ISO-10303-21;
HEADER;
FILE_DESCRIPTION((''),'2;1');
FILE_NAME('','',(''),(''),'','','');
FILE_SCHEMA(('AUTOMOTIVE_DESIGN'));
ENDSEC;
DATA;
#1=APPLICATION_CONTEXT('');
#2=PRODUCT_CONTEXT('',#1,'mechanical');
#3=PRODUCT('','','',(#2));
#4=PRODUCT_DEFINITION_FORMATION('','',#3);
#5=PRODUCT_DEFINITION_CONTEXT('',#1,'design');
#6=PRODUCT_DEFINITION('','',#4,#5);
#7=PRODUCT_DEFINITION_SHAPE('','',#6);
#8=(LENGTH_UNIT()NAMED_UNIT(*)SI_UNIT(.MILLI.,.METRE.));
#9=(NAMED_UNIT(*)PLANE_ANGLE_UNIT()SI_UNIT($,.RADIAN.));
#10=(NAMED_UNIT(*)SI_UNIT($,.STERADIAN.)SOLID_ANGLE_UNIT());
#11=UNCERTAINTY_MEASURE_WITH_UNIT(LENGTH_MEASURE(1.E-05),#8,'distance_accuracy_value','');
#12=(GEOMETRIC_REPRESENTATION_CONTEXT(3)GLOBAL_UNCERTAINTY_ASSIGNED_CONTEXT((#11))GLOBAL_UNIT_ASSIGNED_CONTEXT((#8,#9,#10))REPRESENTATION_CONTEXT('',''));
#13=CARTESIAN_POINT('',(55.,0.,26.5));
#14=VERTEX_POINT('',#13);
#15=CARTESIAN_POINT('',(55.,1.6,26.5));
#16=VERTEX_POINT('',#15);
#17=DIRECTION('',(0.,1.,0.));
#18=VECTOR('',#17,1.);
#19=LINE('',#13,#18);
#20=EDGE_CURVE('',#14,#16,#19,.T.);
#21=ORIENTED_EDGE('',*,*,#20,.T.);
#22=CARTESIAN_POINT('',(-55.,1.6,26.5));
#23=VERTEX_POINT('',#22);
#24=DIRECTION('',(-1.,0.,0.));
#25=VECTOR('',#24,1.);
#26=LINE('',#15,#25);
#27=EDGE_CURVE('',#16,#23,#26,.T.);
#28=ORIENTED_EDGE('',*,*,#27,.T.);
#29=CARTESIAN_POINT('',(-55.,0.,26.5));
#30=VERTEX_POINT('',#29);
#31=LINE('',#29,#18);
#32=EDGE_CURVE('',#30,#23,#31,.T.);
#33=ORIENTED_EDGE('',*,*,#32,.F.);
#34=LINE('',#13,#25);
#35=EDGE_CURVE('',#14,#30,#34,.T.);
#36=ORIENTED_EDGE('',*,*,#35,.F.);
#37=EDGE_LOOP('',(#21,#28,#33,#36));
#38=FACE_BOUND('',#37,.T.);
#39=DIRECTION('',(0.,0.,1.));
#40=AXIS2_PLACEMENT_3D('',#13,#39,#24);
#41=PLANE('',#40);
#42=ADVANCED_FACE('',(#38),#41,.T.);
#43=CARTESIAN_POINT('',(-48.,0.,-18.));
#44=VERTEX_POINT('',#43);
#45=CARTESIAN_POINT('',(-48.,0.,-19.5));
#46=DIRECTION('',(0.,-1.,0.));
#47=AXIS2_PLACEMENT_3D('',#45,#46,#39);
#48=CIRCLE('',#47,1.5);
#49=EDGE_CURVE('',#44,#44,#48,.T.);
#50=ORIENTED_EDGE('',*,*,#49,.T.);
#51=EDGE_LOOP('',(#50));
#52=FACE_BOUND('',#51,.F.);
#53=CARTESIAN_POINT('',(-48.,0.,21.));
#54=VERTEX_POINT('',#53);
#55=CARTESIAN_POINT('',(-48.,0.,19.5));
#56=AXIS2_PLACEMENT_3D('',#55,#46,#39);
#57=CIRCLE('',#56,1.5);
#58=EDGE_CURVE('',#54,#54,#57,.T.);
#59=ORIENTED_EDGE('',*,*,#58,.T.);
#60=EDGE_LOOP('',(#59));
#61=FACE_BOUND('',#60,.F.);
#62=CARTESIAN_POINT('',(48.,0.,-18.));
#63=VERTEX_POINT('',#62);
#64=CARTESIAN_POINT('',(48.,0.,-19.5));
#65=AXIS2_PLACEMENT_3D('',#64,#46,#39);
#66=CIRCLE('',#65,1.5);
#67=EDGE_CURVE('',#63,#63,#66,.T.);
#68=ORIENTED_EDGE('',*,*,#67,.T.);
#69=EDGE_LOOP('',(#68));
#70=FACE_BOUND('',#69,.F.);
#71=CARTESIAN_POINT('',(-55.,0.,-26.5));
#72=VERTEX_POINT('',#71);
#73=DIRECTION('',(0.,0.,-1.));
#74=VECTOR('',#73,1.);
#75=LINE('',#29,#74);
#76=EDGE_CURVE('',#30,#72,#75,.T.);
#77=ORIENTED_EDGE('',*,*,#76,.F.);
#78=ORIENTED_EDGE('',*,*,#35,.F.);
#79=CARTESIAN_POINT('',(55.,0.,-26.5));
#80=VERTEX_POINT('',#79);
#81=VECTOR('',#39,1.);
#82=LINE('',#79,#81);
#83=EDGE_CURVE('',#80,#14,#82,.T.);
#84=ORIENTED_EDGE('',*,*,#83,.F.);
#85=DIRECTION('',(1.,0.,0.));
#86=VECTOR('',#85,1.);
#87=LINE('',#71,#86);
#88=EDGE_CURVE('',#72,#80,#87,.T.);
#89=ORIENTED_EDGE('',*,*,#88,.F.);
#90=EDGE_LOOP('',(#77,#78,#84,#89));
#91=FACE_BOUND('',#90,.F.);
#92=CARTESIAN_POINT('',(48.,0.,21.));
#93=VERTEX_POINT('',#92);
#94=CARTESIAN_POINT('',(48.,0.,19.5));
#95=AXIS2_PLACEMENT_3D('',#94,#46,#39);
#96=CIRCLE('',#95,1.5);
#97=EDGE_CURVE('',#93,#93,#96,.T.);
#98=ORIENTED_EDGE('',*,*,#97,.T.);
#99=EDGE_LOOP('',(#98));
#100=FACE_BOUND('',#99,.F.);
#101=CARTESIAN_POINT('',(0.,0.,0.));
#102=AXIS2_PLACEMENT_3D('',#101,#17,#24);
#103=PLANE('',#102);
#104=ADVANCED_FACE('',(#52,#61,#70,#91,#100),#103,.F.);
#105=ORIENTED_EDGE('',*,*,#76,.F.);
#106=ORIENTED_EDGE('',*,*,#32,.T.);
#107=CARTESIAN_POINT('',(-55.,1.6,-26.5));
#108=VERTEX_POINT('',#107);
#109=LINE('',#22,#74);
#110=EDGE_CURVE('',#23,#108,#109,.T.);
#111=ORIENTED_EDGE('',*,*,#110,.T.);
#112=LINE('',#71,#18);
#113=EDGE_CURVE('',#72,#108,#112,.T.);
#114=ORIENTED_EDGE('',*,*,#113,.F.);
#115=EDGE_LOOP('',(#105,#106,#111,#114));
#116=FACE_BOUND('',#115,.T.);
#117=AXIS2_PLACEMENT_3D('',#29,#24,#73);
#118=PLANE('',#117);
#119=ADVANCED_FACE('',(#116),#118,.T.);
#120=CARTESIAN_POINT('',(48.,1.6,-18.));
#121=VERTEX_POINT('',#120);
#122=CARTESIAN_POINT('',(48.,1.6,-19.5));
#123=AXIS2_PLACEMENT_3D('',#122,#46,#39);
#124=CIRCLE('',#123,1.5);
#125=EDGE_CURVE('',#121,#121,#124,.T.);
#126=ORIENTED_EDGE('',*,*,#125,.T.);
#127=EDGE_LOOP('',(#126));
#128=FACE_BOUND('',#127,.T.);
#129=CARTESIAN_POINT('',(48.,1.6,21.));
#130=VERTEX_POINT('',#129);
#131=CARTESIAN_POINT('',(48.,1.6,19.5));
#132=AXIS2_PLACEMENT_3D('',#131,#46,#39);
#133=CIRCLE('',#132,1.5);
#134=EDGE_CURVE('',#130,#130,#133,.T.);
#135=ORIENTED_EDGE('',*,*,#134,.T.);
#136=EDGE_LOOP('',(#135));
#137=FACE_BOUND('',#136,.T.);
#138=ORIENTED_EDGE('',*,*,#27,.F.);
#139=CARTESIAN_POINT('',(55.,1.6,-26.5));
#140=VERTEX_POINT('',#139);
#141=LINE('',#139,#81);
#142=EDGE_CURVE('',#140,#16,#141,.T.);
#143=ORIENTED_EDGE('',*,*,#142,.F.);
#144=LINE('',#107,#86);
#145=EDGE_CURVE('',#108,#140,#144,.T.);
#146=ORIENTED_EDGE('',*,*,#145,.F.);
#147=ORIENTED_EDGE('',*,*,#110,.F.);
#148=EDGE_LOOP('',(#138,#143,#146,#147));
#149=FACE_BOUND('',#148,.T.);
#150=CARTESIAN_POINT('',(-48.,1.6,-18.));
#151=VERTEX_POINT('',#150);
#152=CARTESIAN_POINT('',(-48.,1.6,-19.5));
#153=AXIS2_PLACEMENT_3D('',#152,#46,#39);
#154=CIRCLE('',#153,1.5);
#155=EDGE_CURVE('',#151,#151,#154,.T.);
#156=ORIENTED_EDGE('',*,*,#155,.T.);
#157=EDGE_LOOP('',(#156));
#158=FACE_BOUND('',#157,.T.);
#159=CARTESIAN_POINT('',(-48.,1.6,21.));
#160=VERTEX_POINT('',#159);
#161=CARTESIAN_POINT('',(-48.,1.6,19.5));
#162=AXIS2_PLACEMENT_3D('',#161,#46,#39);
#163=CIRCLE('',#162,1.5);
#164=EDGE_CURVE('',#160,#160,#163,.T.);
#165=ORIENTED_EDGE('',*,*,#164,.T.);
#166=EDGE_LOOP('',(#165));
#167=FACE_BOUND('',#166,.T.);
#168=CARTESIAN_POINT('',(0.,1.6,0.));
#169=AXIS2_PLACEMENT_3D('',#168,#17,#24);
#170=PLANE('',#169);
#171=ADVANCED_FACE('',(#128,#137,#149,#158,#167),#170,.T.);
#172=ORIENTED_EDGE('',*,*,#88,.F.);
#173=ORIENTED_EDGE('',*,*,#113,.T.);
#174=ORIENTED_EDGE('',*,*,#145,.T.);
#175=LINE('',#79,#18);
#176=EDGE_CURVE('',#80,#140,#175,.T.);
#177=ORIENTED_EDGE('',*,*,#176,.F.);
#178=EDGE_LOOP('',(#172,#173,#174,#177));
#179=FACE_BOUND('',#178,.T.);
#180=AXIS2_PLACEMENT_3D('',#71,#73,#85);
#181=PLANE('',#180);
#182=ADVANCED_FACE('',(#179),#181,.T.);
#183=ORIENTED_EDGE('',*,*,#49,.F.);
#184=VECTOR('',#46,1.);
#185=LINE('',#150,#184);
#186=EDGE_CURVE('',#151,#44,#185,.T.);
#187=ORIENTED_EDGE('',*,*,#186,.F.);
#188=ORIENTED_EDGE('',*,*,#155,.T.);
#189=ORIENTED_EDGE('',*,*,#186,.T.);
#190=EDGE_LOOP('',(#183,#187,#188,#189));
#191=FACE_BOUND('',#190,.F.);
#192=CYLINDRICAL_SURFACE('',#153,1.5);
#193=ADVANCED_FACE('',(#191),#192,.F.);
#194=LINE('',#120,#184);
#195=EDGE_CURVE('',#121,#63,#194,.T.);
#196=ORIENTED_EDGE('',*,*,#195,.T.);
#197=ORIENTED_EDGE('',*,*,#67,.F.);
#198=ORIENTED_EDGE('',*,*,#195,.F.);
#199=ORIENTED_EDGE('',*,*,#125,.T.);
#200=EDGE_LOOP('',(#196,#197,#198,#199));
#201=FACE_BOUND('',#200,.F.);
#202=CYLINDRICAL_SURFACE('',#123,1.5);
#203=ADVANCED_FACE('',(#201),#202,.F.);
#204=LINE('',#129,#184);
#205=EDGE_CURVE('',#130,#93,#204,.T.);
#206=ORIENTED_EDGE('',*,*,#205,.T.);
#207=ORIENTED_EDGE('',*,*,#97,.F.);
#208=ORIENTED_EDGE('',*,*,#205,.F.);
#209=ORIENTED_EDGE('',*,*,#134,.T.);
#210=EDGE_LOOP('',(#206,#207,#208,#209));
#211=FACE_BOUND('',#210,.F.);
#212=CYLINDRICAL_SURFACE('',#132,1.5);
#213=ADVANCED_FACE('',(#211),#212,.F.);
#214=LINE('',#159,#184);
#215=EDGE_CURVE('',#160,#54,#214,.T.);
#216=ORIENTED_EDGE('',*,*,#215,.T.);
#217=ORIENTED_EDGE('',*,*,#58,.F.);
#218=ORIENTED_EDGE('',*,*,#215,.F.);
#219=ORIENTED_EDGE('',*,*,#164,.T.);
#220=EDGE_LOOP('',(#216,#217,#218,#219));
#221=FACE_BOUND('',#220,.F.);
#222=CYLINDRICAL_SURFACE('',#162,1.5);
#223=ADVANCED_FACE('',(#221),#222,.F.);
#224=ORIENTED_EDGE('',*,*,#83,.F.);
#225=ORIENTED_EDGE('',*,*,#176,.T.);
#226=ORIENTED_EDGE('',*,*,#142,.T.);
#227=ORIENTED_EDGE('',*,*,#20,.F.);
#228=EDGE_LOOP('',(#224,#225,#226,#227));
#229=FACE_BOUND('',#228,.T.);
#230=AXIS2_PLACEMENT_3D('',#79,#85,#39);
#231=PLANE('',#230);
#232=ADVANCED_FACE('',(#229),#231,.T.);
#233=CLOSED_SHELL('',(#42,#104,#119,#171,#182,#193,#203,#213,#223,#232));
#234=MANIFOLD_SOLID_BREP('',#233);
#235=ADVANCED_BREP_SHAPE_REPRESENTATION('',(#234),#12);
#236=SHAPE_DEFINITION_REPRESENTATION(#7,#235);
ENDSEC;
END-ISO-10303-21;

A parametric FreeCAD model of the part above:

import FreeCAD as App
import Part
import Sketcher
Q = App.Units.Quantity

doc = App.newDocument("Part")
params = doc.addObject("Spreadsheet::Sheet", "Params")
for row, (alias, value) in enumerate([
    ("sketch1_width", "110 mm"),
    ("sketch1_height", "53 mm"),
    ("pad1_length", "1.6 mm"),
    ("sketch2_diameter", "3 mm"),
    ("hole_diameter", "3 mm"),
], start=1):
    params.set(f"A{row}", alias)
    params.set(f"B{row}", "=" + value)
    params.setAlias(f"B{row}", alias)

body = doc.addObject("PartDesign::Body", "Body")

# Sketch on XZ plane
sketch1 = body.newObject("Sketcher::SketchObject", "Sketch")
sketch1.AttachmentSupport = (doc.getObject("XZ_Plane"), [""])
sketch1.MapMode = "FlatFace"
sketch1.addGeometry([
    Part.LineSegment(App.Vector(55, -26, 0), App.Vector(-55, -26, 0)),
    Part.LineSegment(App.Vector(-55, -26, 0), App.Vector(-55, 26, 0)),
    Part.LineSegment(App.Vector(-55, 26, 0), App.Vector(55, 26, 0)),
    Part.LineSegment(App.Vector(55, 26, 0), App.Vector(55, -26, 0)),
], False)
sketch1.addConstraint([
    Sketcher.Constraint("Coincident", 0, 2, 1, 1),
    Sketcher.Constraint("Coincident", 1, 2, 2, 1),
    Sketcher.Constraint("Coincident", 2, 2, 3, 1),
    Sketcher.Constraint("Coincident", 3, 2, 0, 1),
    Sketcher.Constraint("Horizontal", 0),
    Sketcher.Constraint("Vertical", 1),
    Sketcher.Constraint("Horizontal", 2),
    Sketcher.Constraint("Vertical", 3),
    Sketcher.Constraint("Symmetric", 0, 2, 2, 2, -1, 1),
    Sketcher.Constraint("DistanceX", 0, 2, 0, 1, Q("110 mm")),
    Sketcher.Constraint("DistanceY", 1, 1, 1, 2, Q("53 mm")),
])
sketch1.setExpression("Constraints[9]", "Params.sketch1_width")
sketch1.setExpression("Constraints[10]", "Params.sketch1_height")
pad1 = body.newObject("PartDesign::Pad", "Pad")
pad1.Profile = sketch1
pad1.setExpression("Length", "Params.pad1_length")
pad1.Reversed = True

# Sketch on XZ plane
sketch2 = body.newObject("Sketcher::SketchObject", "Sketch001")
sketch2.AttachmentSupport = (doc.getObject("XZ_Plane"), [""])
sketch2.MapMode = "FlatFace"
sketch2.AttachmentOffset = App.Placement(App.Vector(0, 0, -1.6), App.Rotation())
sketch2.addGeometry([
    Part.Circle(App.Vector(-48, 19.5, 0), App.Vector(0, 0, 1), 1.5),
    Part.Circle(App.Vector(-48, -19.5, 0), App.Vector(0, 0, 1), 1.5),
    Part.Circle(App.Vector(48, 19.5, 0), App.Vector(0, 0, 1), 1.5),
    Part.Circle(App.Vector(48, -19.5, 0), App.Vector(0, 0, 1), 1.5),
], False)
sketch2.addConstraint([
    Sketcher.Constraint("Equal", 0, 1),
    Sketcher.Constraint("Equal", 1, 2),
    Sketcher.Constraint("Equal", 2, 3),
    Sketcher.Constraint("Symmetric", 1, 3, 2, 3, -1, 1),
    Sketcher.Constraint("Symmetric", 0, 3, 3, 3, -1, 1),
    Sketcher.Constraint("Symmetric", 0, 3, 2, 3, -2),
    Sketcher.Constraint("Diameter", 0, Q("3 mm")),
    Sketcher.Constraint("DistanceX", 0, 3, -1, 1, Q("48 mm")),
    Sketcher.Constraint("DistanceY", 1, 3, 0, 3, Q("39 mm")),
])
sketch2.setExpression("Constraints[6]", "Params.sketch2_diameter")
doc.recompute()
hole = body.newObject("PartDesign::Hole", "Hole")
hole.Profile = sketch2
hole.ThreadType = "None"
hole.setExpression("Diameter", "Params.hole_diameter")
hole.DepthType = "ThroughAll"
hole.Reversed = True

doc.recompute()
